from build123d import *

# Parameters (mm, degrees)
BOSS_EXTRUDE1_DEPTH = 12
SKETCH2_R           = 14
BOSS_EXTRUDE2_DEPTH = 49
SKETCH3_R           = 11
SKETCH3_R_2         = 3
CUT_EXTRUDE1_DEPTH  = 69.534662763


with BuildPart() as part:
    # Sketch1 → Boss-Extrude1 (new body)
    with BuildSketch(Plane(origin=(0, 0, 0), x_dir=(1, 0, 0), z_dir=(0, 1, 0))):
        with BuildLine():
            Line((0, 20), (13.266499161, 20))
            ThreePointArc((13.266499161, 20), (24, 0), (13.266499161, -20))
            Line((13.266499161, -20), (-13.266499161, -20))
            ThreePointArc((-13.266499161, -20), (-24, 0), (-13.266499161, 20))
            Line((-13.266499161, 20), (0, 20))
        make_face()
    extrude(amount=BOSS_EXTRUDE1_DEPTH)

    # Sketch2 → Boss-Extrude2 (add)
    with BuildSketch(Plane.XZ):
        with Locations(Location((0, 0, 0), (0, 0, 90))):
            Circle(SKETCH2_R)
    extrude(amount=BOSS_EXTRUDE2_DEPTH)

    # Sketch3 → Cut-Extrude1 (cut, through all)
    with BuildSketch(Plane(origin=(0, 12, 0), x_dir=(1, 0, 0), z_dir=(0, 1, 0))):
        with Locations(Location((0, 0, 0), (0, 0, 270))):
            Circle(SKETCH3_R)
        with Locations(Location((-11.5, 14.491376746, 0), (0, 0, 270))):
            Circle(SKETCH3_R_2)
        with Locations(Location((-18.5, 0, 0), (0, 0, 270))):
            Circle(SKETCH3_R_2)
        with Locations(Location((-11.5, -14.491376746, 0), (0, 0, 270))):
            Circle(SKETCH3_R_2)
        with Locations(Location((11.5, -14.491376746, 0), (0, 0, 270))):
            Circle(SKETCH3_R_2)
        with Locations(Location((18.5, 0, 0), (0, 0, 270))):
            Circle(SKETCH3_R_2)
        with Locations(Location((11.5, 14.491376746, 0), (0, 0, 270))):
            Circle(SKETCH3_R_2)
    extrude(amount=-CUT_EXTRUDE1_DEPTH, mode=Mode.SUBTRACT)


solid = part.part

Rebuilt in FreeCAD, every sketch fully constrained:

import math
import FreeCAD as App
import Part
import Sketcher
Q = App.Units.Quantity

doc = App.newDocument("Part")
body = doc.addObject("PartDesign::Body", "Body")

# Sketch on XZ plane
sketch1 = body.newObject("Sketcher::SketchObject", "Sketch")
sketch1.AttachmentSupport = (doc.getObject("XZ_Plane"), [""])
sketch1.MapMode = "FlatFace"
sketch1.addGeometry([
    Part.ArcOfCircle(Part.Circle(App.Vector(0, 0, 0), App.Vector(0, 0, 1), 24), math.radians(-56), math.radians(56)),
    Part.LineSegment(App.Vector(13, -20, 0), App.Vector(-13, -20, 0)),
    Part.ArcOfCircle(Part.Circle(App.Vector(0, 0, 0), App.Vector(0, 0, 1), 24), math.radians(124), math.radians(236)),
    Part.LineSegment(App.Vector(-13, 20, 0), App.Vector(13, 20, 0)),
], False)
sketch1.addConstraint([
    Sketcher.Constraint("Coincident", 0, 1, 1, 1),
    Sketcher.Constraint("Coincident", 1, 2, 2, 2),
    Sketcher.Constraint("Coincident", 2, 1, 3, 1),
    Sketcher.Constraint("Coincident", 3, 2, 0, 2),
    Sketcher.Constraint("Horizontal", 1),
    Sketcher.Constraint("Horizontal", 3),
    Sketcher.Constraint("Coincident", 0, 3, -1, 1),
    Sketcher.Constraint("Coincident", 2, 3, -1, 1),
    Sketcher.Constraint("Equal", 0, 2),
    Sketcher.Constraint("Vertical", 1, 2, 2, 1),
    Sketcher.Constraint("Radius", 0, Q("24 mm")),
    Sketcher.Constraint("DistanceY", 0, 1, -1, 1, Q("20 mm")),
])
pad1 = body.newObject("PartDesign::Pad", "Pad")
pad1.Profile = sketch1
pad1.Length = 12
pad1.Reversed = True

# Sketch on XZ plane
sketch2 = body.newObject("Sketcher::SketchObject", "Sketch001")
sketch2.AttachmentSupport = (doc.getObject("XZ_Plane"), [""])
sketch2.MapMode = "FlatFace"
sketch2.addGeometry(Part.Circle(App.Vector(0, 0, 0), App.Vector(0, 0, 1), 14), False)
sketch2.addConstraint([
    Sketcher.Constraint("Coincident", 0, 3, -1, 1),
    Sketcher.Constraint("Diameter", 0, Q("28 mm")),
])
pad2 = body.newObject("PartDesign::Pad", "Pad001")
pad2.Profile = sketch2
pad2.Length = 49

# Sketch on XZ plane
sketch3 = body.newObject("Sketcher::SketchObject", "Sketch002")
sketch3.AttachmentSupport = (doc.getObject("XZ_Plane"), [""])
sketch3.MapMode = "FlatFace"
sketch3.AttachmentOffset = App.Placement(App.Vector(0, 0, -12), App.Rotation())
sketch3.addGeometry([
    Part.Circle(App.Vector(0, 0, 0), App.Vector(0, 0, 1), 11),  # 0
    Part.Circle(App.Vector(-11.5, -14.5, 0), App.Vector(0, 0, 1), 3),  # 1
    Part.Circle(App.Vector(-18.5, 0, 0), App.Vector(0, 0, 1), 3),  # 2
    Part.Circle(App.Vector(-11.5, 14.5, 0), App.Vector(0, 0, 1), 3),  # 3
    Part.Circle(App.Vector(11.5, 14.5, 0), App.Vector(0, 0, 1), 3),  # 4
    Part.Circle(App.Vector(18.5, 0, 0), App.Vector(0, 0, 1), 3),  # 5
    Part.Circle(App.Vector(11.5, -14.5, 0), App.Vector(0, 0, 1), 3),  # 6
], False)
sketch3.addConstraint([
    Sketcher.Constraint("Coincident", 0, 3, -1, 1),
    Sketcher.Constraint("Equal", 1, 2),
    Sketcher.Constraint("Equal", 2, 3),
    Sketcher.Constraint("Equal", 3, 4),
    Sketcher.Constraint("Equal", 4, 5),
    Sketcher.Constraint("Equal", 5, 6),
    Sketcher.Constraint("Symmetric", 1, 3, 4, 3, -1, 1),
    Sketcher.Constraint("Symmetric", 2, 3, 5, 3, -1, 1),
    Sketcher.Constraint("Symmetric", 3, 3, 6, 3, -1, 1),
    Sketcher.Constraint("Symmetric", 3, 3, 4, 3, -2),
    Sketcher.Constraint("PointOnObject", 2, 3, -1),
    Sketcher.Constraint("Diameter", 0, Q("22 mm")),
    Sketcher.Constraint("Diameter", 1, Q("6 mm")),
    Sketcher.Constraint("DistanceX", 2, 3, 1, 3, Q("7 mm")),
    Sketcher.Constraint("DistanceX", 3, 3, 4, 3, Q("23 mm")),
    Sketcher.Constraint("DistanceY", 1, 3, -1, 1, Q("14.491377 mm")),
])
pocket1 = body.newObject("PartDesign::Pocket", "Pocket")
pocket1.Profile = sketch3
pocket1.Type = "ThroughAll"
pocket1.Reversed = True

doc.recompute()
